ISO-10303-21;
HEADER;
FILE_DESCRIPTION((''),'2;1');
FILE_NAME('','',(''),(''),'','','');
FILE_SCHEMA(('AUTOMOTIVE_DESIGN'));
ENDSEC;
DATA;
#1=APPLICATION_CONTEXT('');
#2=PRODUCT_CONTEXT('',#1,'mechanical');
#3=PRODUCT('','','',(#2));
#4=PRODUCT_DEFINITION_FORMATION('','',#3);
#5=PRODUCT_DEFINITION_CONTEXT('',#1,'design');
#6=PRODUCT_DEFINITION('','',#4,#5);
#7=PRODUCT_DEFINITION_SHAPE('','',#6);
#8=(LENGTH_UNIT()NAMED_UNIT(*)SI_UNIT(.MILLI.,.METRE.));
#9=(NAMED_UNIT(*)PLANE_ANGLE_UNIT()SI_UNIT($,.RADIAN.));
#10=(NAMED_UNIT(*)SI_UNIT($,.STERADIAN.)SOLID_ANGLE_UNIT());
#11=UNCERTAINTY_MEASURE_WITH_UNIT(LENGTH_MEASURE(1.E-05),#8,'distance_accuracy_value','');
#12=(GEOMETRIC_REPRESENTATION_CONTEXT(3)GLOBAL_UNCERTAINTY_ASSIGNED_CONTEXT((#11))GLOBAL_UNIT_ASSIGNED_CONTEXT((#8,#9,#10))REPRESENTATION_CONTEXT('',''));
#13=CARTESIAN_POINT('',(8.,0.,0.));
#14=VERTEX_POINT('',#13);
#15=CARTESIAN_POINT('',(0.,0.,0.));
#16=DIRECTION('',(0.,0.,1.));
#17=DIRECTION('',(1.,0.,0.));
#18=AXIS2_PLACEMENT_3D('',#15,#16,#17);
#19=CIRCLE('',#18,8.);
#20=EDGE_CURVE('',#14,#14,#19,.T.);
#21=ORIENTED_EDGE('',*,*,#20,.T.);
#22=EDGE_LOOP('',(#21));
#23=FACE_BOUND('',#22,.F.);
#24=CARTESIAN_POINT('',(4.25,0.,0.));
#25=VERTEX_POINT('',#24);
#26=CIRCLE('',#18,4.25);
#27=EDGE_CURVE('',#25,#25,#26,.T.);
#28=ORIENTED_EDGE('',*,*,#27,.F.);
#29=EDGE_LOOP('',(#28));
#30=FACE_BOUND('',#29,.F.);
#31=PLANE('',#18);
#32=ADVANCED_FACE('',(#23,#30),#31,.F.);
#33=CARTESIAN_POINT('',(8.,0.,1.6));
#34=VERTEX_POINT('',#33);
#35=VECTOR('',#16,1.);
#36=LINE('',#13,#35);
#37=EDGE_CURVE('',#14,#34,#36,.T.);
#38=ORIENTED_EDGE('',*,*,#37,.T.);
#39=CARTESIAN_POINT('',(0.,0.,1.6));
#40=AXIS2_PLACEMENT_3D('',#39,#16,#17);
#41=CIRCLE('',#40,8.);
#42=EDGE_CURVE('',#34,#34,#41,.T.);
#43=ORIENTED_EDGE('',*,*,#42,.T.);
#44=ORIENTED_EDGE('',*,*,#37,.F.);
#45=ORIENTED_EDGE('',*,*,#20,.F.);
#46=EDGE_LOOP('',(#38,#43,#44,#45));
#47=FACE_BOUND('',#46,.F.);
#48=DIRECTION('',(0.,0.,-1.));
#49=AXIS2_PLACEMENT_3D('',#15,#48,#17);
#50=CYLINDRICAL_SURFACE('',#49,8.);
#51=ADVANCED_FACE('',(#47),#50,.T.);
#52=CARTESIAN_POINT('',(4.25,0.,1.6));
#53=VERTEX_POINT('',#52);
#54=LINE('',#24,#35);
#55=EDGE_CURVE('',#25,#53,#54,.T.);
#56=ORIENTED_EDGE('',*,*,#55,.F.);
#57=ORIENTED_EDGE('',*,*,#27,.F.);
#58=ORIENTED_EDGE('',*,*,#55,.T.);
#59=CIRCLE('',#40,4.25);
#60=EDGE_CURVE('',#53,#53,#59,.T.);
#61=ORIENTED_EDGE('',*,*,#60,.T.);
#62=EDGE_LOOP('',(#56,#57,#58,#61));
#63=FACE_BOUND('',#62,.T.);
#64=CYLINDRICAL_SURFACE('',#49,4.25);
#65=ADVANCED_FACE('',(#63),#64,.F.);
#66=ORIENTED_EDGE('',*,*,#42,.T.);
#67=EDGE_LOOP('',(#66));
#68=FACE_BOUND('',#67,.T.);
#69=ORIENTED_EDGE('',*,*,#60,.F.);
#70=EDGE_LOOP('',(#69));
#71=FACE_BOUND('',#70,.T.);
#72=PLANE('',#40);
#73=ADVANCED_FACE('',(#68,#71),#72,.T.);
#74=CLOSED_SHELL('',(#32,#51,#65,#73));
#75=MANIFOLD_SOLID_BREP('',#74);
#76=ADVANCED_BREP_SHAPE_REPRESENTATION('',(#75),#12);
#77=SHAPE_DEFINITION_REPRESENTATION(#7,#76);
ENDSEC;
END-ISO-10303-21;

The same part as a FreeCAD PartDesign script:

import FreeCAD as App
import Part
import Sketcher
from FreeCAD import Vector
Q = App.Units.Quantity

doc = App.newDocument("Part")
body = doc.addObject("PartDesign::Body", "Body")

# Sketch on XY plane
sketch1 = body.newObject("Sketcher::SketchObject", "Sketch")
sketch1.AttachmentSupport = (doc.getObject("XY_Plane"), [""])
sketch1.MapMode = "FlatFace"
sketch1.addGeometry([
    Part.Circle(Vector(0, 0, 0), Vector(0, 0, 1), 8),
    Part.Circle(Vector(0, 0, 0), Vector(0, 0, 1), 4.2),
], False)
sketch1.addConstraint([
    Sketcher.Constraint("Coincident", 0, 3, -1, 1),
    Sketcher.Constraint("Coincident", 1, 3, -1, 1),
    Sketcher.Constraint("Diameter", 0, Q("16 mm")),
    Sketcher.Constraint("Diameter", 1, Q("8.5 mm")),
])
pad1 = body.newObject("PartDesign::Pad", "Pad")
pad1.Profile = sketch1
pad1.Length = 1.6

doc.recompute()
